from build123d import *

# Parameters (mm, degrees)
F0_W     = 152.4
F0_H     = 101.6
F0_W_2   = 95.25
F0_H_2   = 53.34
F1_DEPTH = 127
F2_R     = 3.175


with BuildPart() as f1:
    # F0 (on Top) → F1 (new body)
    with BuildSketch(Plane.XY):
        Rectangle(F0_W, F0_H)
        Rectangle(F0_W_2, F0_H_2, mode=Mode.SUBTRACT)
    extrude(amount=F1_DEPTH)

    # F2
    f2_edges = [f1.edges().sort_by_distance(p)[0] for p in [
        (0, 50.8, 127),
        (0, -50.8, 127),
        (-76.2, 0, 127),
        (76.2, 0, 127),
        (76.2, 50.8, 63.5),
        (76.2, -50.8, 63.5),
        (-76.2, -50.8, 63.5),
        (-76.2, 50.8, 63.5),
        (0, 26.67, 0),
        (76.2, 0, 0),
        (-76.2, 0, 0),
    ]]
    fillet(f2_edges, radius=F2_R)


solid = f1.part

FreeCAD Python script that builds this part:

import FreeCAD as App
import Part
import Sketcher
from FreeCAD import Vector
Q = App.Units.Quantity


def edges_at(feature, points):
    """Names of the edges that pass closest to the given points."""
    edges = feature.Shape.Edges
    near = lambda p: min(range(len(edges)), key=lambda i: edges[i].distToShape(Part.Vertex(*p))[0])
    return sorted({f"Edge{near(p) + 1}" for p in points})


def add_polygon(sketch, points):
    """Adds a closed chain of lines whose ends are joined by coincident constraints."""
    first, n = sketch.GeometryCount, len(points)
    for a, b in zip(points, points[1:] + points[:1]):
        sketch.addGeometry(Part.LineSegment(App.Vector(*a, 0), App.Vector(*b, 0)), False)
    for i in range(n):
        sketch.addConstraint(Sketcher.Constraint("Coincident", first + i, 2, first + (i + 1) % n, 1))

doc = App.newDocument("Part")
body = doc.addObject("PartDesign::Body", "Body")

# Sketch on XY plane
sketch1 = doc.addObject("Sketcher::SketchObject", "Sketch")
body.addObject(sketch1)
sketch1.AttachmentSupport = (doc.XY_Plane, [""])
sketch1.MapMode = "FlatFace"
add_polygon(sketch1, [(-76, 51), (-76, -51), (76, -51), (76, 51)])  # lines 0-3
add_polygon(sketch1, [(48, -27), (-48, -27), (-48, 27), (48, 27)])  # lines 4-7
sketch1.addConstraint(Sketcher.Constraint("Vertical", 0))
sketch1.addConstraint(Sketcher.Constraint("Horizontal", 1))
sketch1.addConstraint(Sketcher.Constraint("Vertical", 2))
sketch1.addConstraint(Sketcher.Constraint("Horizontal", 3))
sketch1.addConstraint(Sketcher.Constraint("Horizontal", 4))
sketch1.addConstraint(Sketcher.Constraint("Vertical", 5))
sketch1.addConstraint(Sketcher.Constraint("Horizontal", 6))
sketch1.addConstraint(Sketcher.Constraint("Vertical", 7))
sketch1.addConstraint(Sketcher.Constraint("Symmetric", 0, 2, 2, 2, -1, 1))
sketch1.addConstraint(Sketcher.Constraint("Symmetric", 4, 2, 6, 2, -1, 1))
sketch1.addConstraint(Sketcher.Constraint("DistanceX", 1, 1, 1, 2, Q("6 in")))
sketch1.addConstraint(Sketcher.Constraint("DistanceY", 0, 2, 0, 1, Q("4 in")))
sketch1.addConstraint(Sketcher.Constraint("DistanceY", 5, 1, 5, 2, Q("2.1 in")))
sketch1.addConstraint(Sketcher.Constraint("DistanceX", 4, 2, 4, 1, Q("3.75 in")))
pad1 = doc.addObject("PartDesign::Pad", "Pad")
body.addObject(pad1)
pad1.Profile = sketch1
pad1.Length = Q("5 in")
doc.recompute()

fillet = doc.addObject("PartDesign::Fillet", "Fillet")
body.addObject(fillet)
fillet.Base = (pad1, edges_at(pad1, [
    (0, 50.8, 127),
    (0, -50.8, 127),
    (-76.2, 0, 127),
    (76.2, 0, 127),
    (76.2, 50.8, 63.5),
    (76.2, -50.8, 63.5),
    (-76.2, -50.8, 63.5),
    (-76.2, 50.8, 63.5),
    (0, 26.67, 0),
    (76.2, 0, 0),
    (-76.2, 0, 0),
]))
fillet.Radius = Q("0.125 in")

doc.recompute()
